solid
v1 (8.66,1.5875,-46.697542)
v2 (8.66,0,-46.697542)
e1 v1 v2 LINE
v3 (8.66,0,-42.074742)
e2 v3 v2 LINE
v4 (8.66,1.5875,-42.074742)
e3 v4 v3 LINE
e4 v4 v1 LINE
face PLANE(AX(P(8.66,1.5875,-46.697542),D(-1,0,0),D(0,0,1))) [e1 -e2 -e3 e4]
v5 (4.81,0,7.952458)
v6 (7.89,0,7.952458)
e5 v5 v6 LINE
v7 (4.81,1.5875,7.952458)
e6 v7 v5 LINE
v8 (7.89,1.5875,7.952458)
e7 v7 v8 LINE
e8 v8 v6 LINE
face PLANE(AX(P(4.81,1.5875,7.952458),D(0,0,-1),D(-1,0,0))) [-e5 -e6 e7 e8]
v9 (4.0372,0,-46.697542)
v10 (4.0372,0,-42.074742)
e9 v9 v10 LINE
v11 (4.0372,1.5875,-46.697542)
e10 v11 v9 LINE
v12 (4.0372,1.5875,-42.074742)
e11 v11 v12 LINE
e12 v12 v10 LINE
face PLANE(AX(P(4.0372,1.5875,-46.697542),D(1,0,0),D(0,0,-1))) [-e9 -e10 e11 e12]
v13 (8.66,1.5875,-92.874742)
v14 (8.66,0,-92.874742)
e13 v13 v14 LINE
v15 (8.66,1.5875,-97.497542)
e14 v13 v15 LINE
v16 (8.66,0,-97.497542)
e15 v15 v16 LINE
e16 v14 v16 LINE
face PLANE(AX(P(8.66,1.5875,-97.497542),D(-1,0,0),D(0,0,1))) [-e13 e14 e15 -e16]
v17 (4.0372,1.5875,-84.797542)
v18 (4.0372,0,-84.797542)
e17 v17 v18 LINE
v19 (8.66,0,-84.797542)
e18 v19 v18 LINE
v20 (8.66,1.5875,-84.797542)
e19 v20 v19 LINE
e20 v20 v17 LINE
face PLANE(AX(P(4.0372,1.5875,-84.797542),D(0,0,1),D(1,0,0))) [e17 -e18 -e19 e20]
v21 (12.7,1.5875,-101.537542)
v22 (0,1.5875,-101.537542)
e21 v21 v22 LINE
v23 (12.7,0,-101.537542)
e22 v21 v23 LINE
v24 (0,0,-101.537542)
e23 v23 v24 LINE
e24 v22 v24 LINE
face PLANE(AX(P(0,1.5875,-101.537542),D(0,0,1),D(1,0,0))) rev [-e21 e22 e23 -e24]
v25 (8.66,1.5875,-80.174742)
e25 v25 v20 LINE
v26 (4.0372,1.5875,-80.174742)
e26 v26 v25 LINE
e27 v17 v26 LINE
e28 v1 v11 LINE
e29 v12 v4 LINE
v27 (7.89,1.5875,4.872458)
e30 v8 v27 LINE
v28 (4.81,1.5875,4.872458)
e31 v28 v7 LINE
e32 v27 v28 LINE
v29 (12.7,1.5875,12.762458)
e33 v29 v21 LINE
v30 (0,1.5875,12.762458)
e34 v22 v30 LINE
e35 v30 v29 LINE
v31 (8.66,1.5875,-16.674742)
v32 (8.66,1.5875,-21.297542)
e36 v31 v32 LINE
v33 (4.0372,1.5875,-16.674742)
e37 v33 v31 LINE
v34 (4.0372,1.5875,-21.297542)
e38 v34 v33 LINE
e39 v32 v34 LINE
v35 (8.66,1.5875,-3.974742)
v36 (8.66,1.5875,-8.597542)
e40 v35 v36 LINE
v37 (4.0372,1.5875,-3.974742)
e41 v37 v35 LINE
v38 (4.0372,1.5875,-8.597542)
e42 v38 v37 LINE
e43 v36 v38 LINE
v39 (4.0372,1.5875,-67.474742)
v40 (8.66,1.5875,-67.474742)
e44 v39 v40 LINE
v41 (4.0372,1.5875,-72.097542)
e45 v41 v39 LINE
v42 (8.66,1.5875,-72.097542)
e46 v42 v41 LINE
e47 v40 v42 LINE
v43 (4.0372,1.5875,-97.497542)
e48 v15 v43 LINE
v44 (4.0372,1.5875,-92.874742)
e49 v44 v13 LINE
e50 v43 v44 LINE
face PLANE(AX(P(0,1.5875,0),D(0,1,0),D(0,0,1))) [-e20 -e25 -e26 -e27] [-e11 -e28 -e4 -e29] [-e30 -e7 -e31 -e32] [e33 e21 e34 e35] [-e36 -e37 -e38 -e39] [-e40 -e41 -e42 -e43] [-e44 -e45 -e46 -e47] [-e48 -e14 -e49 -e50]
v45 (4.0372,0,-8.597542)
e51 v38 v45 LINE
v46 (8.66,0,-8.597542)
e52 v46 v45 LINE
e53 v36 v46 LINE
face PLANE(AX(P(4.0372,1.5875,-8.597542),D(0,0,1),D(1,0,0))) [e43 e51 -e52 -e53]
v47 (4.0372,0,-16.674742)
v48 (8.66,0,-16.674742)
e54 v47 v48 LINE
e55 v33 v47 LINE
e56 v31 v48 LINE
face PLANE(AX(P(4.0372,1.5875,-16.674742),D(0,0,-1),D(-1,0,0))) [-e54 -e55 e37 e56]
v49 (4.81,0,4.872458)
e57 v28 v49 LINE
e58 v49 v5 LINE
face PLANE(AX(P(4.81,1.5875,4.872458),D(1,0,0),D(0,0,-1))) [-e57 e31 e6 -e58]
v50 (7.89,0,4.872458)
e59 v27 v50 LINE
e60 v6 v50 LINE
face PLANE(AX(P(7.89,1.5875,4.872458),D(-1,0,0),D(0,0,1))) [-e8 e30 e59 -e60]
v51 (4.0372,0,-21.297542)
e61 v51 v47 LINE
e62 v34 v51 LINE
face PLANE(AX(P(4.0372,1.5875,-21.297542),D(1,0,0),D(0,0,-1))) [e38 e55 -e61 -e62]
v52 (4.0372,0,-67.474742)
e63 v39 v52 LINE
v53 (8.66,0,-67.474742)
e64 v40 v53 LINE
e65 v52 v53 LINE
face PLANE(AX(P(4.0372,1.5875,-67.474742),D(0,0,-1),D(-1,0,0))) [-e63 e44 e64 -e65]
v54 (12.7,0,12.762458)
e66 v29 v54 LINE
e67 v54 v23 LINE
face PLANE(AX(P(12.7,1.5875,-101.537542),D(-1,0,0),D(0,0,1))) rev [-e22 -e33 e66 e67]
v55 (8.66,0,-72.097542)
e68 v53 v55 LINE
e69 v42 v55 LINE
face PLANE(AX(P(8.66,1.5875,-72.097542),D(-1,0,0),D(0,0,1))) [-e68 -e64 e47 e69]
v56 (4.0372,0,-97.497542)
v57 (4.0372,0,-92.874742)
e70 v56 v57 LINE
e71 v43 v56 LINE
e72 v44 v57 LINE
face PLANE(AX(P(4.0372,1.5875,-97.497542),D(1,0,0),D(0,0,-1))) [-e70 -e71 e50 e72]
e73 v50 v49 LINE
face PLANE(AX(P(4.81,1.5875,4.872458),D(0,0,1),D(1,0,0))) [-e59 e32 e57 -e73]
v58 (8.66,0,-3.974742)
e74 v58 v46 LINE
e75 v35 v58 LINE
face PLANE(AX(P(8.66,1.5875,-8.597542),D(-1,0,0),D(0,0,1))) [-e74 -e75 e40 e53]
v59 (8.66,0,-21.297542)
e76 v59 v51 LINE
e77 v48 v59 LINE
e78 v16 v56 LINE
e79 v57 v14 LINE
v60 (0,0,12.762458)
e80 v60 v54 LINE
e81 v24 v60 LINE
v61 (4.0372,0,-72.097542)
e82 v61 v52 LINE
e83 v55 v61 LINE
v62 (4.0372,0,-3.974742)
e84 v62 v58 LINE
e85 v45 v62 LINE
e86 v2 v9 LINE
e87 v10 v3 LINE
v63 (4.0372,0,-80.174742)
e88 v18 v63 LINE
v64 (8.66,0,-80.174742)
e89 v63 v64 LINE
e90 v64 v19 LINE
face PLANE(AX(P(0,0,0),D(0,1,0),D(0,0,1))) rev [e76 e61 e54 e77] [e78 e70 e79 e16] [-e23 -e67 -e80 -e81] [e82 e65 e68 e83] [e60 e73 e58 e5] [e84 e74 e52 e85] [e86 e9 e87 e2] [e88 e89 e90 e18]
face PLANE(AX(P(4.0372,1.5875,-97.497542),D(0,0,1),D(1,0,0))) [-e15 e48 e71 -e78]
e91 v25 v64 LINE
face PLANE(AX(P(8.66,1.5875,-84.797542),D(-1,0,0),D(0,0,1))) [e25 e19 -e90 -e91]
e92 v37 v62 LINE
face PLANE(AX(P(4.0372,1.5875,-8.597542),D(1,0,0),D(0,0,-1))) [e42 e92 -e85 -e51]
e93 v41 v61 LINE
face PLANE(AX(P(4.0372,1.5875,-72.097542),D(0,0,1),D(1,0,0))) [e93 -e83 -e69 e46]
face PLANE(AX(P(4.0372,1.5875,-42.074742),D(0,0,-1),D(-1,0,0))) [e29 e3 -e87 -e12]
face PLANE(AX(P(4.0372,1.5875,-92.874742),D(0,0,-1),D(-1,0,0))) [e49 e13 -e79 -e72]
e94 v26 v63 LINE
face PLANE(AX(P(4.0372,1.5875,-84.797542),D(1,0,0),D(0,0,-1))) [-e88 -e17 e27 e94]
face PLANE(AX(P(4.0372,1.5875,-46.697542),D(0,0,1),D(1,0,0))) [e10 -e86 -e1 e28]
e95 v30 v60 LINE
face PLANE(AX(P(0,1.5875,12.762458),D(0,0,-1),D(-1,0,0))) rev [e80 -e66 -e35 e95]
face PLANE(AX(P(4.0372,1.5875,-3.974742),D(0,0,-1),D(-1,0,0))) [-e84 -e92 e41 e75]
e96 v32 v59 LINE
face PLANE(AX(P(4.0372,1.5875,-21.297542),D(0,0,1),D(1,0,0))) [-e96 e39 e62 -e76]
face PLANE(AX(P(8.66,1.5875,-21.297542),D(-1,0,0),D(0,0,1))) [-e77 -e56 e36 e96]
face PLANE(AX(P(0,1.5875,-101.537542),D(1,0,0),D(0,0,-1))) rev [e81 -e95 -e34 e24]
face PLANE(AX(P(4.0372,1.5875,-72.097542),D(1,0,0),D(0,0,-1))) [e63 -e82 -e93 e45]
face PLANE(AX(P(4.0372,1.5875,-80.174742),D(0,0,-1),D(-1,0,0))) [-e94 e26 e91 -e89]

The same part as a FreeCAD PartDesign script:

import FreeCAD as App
import Part
import Sketcher
Q = App.Units.Quantity

doc = App.newDocument("Part")
body = doc.addObject("PartDesign::Body", "Body")

# Sketch on XZ plane
sketch1 = body.newObject("Sketcher::SketchObject", "Sketch")
sketch1.AttachmentSupport = (doc.getObject("XZ_Plane"), [""])
sketch1.MapMode = "FlatFace"
sketch1.addGeometry([
    Part.LineSegment(App.Vector(0, -101.5, 0), App.Vector(0, 12.8, 0)),  # 0
    Part.LineSegment(App.Vector(0, 12.8, 0), App.Vector(12.7, 12.8, 0)),  # 1
    Part.LineSegment(App.Vector(12.7, 12.8, 0), App.Vector(12.7, -101.5, 0)),  # 2
    Part.LineSegment(App.Vector(12.7, -101.5, 0), App.Vector(0, -101.5, 0)),  # 3
    Part.LineSegment(App.Vector(7.9, 8, 0), App.Vector(4.8, 8, 0)),  # 4
    Part.LineSegment(App.Vector(4.8, 8, 0), App.Vector(4.8, 4.9, 0)),  # 5
    Part.LineSegment(App.Vector(4.8, 4.9, 0), App.Vector(7.9, 4.9, 0)),  # 6
    Part.LineSegment(App.Vector(7.9, 4.9, 0), App.Vector(7.9, 8, 0)),  # 7
    Part.LineSegment(App.Vector(8.7, -4, 0), App.Vector(4, -4, 0)),  # 8
    Part.LineSegment(App.Vector(4, -4, 0), App.Vector(4, -8.6, 0)),  # 9
    Part.LineSegment(App.Vector(4, -8.6, 0), App.Vector(8.7, -8.6, 0)),  # 10
    Part.LineSegment(App.Vector(8.7, -8.6, 0), App.Vector(8.7, -4, 0)),  # 11
    Part.LineSegment(App.Vector(8.7, -16.7, 0), App.Vector(4, -16.7, 0)),  # 12
    Part.LineSegment(App.Vector(4, -16.7, 0), App.Vector(4, -21.3, 0)),  # 13
    Part.LineSegment(App.Vector(4, -21.3, 0), App.Vector(8.7, -21.3, 0)),  # 14
    Part.LineSegment(App.Vector(8.7, -21.3, 0), App.Vector(8.7, -16.7, 0)),  # 15
    Part.LineSegment(App.Vector(8.7, -42.1, 0), App.Vector(4, -42.1, 0)),  # 16
    Part.LineSegment(App.Vector(4, -42.1, 0), App.Vector(4, -46.7, 0)),  # 17
    Part.LineSegment(App.Vector(4, -46.7, 0), App.Vector(8.7, -46.7, 0)),  # 18
    Part.LineSegment(App.Vector(8.7, -46.7, 0), App.Vector(8.7, -42.1, 0)),  # 19
    Part.LineSegment(App.Vector(8.7, -67.5, 0), App.Vector(4, -67.5, 0)),  # 20
    Part.LineSegment(App.Vector(4, -67.5, 0), App.Vector(4, -72.1, 0)),  # 21
    Part.LineSegment(App.Vector(4, -72.1, 0), App.Vector(8.7, -72.1, 0)),  # 22
    Part.LineSegment(App.Vector(8.7, -72.1, 0), App.Vector(8.7, -67.5, 0)),  # 23
    Part.LineSegment(App.Vector(8.7, -80.2, 0), App.Vector(4, -80.2, 0)),  # 24
    Part.LineSegment(App.Vector(4, -80.2, 0), App.Vector(4, -84.8, 0)),  # 25
    Part.LineSegment(App.Vector(4, -84.8, 0), App.Vector(8.7, -84.8, 0)),  # 26
    Part.LineSegment(App.Vector(8.7, -84.8, 0), App.Vector(8.7, -80.2, 0)),  # 27
    Part.LineSegment(App.Vector(8.7, -92.9, 0), App.Vector(4, -92.9, 0)),  # 28
    Part.LineSegment(App.Vector(4, -92.9, 0), App.Vector(4, -97.5, 0)),  # 29
    Part.LineSegment(App.Vector(4, -97.5, 0), App.Vector(8.7, -97.5, 0)),  # 30
    Part.LineSegment(App.Vector(8.7, -97.5, 0), App.Vector(8.7, -92.9, 0)),  # 31
], False)
sketch1.addConstraint([
    Sketcher.Constraint("Coincident", 0, 2, 1, 1),
    Sketcher.Constraint("Coincident", 1, 2, 2, 1),
    Sketcher.Constraint("Coincident", 2, 2, 3, 1),
    Sketcher.Constraint("Coincident", 3, 2, 0, 1),
    Sketcher.Constraint("Coincident", 4, 2, 5, 1),
    Sketcher.Constraint("Coincident", 5, 2, 6, 1),
    Sketcher.Constraint("Coincident", 6, 2, 7, 1),
    Sketcher.Constraint("Coincident", 7, 2, 4, 1),
    Sketcher.Constraint("Coincident", 8, 2, 9, 1),
    Sketcher.Constraint("Coincident", 9, 2, 10, 1),
    Sketcher.Constraint("Coincident", 10, 2, 11, 1),
    Sketcher.Constraint("Coincident", 11, 2, 8, 1),
    Sketcher.Constraint("Coincident", 12, 2, 13, 1),
    Sketcher.Constraint("Coincident", 13, 2, 14, 1),
    Sketcher.Constraint("Coincident", 14, 2, 15, 1),
    Sketcher.Constraint("Coincident", 15, 2, 12, 1),
    Sketcher.Constraint("Coincident", 16, 2, 17, 1),
    Sketcher.Constraint("Coincident", 17, 2, 18, 1),
    Sketcher.Constraint("Coincident", 18, 2, 19, 1),
    Sketcher.Constraint("Coincident", 19, 2, 16, 1),
    Sketcher.Constraint("Coincident", 20, 2, 21, 1),
    Sketcher.Constraint("Coincident", 21, 2, 22, 1),
    Sketcher.Constraint("Coincident", 22, 2, 23, 1),
    Sketcher.Constraint("Coincident", 23, 2, 20, 1),
    Sketcher.Constraint("Coincident", 24, 2, 25, 1),
    Sketcher.Constraint("Coincident", 25, 2, 26, 1),
    Sketcher.Constraint("Coincident", 26, 2, 27, 1),
    Sketcher.Constraint("Coincident", 27, 2, 24, 1),
    Sketcher.Constraint("Coincident", 28, 2, 29, 1),
    Sketcher.Constraint("Coincident", 29, 2, 30, 1),
    Sketcher.Constraint("Coincident", 30, 2, 31, 1),
    Sketcher.Constraint("Coincident", 31, 2, 28, 1),
    Sketcher.Constraint("Vertical", 0),
    Sketcher.Constraint("Horizontal", 1),
    Sketcher.Constraint("Vertical", 2),
    Sketcher.Constraint("Horizontal", 3),
    Sketcher.Constraint("Horizontal", 4),
    Sketcher.Constraint("Vertical", 5),
    Sketcher.Constraint("Horizontal", 6),
    Sketcher.Constraint("Vertical", 7),
    Sketcher.Constraint("Horizontal", 8),
    Sketcher.Constraint("Vertical", 9),
    Sketcher.Constraint("Horizontal", 10),
    Sketcher.Constraint("Vertical", 11),
    Sketcher.Constraint("Horizontal", 12),
    Sketcher.Constraint("Vertical", 13),
    Sketcher.Constraint("Horizontal", 14),
    Sketcher.Constraint("Vertical", 15),
    Sketcher.Constraint("Horizontal", 16),
    Sketcher.Constraint("Vertical", 17),
    Sketcher.Constraint("Horizontal", 18),
    Sketcher.Constraint("Vertical", 19),
    Sketcher.Constraint("Horizontal", 20),
    Sketcher.Constraint("Vertical", 21),
    Sketcher.Constraint("Horizontal", 22),
    Sketcher.Constraint("Vertical", 23),
    Sketcher.Constraint("Horizontal", 24),
    Sketcher.Constraint("Vertical", 25),
    Sketcher.Constraint("Horizontal", 26),
    Sketcher.Constraint("Vertical", 27),
    Sketcher.Constraint("Horizontal", 28),
    Sketcher.Constraint("Vertical", 29),
    Sketcher.Constraint("Horizontal", 30),
    Sketcher.Constraint("Vertical", 31),
    Sketcher.Constraint("PointOnObject", 0, 2, -2),
    Sketcher.Constraint("Vertical", 9, 2, 12, 2),
    Sketcher.Constraint("Vertical", 11, 2, 14, 2),
    Sketcher.Constraint("Vertical", 13, 2, 16, 2),
    Sketcher.Constraint("Vertical", 15, 2, 18, 2),
    Sketcher.Constraint("Vertical", 17, 2, 20, 2),
    Sketcher.Constraint("Vertical", 19, 2, 22, 2),
    Sketcher.Constraint("Vertical", 21, 2, 24, 2),
    Sketcher.Constraint("Vertical", 23, 2, 26, 2),
    Sketcher.Constraint("Vertical", 25, 2, 28, 2),
    Sketcher.Constraint("Vertical", 27, 2, 30, 2),
    Sketcher.Constraint("Equal", 6, 5),
    Sketcher.Constraint("Equal", 30, 9),
    Sketcher.Constraint("Equal", 11, 13),
    Sketcher.Constraint("Equal", 15, 17),
    Sketcher.Constraint("Equal", 19, 21),
    Sketcher.Constraint("Equal", 23, 25),
    Sketcher.Constraint("Equal", 27, 29),
    Sketcher.Constraint("DistanceX", 1, 1, 1, 2, Q("0.5 in")),
    Sketcher.Constraint("DistanceY", 0, 1, 0, 2, Q("4.5 in")),
    Sketcher.Constraint("DistanceY", 16, 2, 12, 2, Q("1 in")),
    Sketcher.Constraint("DistanceY", 20, 2, 16, 2, Q("1 in")),
    Sketcher.Constraint("DistanceY", 12, 2, 8, 2, Q("0.5 in")),
    Sketcher.Constraint("DistanceY", 24, 2, 20, 2, Q("0.5 in")),
    Sketcher.Constraint("DistanceY", 28, 2, 24, 2, Q("0.5 in")),
    Sketcher.Constraint("DistanceX", 8, 2, 8, 1, Q("0.182 in")),
    Sketcher.Constraint("DistanceX", 4, 2, 4, 1, Q("3.08 mm")),
    Sketcher.Constraint("DistanceX", -1, 1, 4, 2, Q("4.81 mm")),
    Sketcher.Constraint("DistanceX", -1, 1, 8, 2, Q("4.0372 mm")),
    Sketcher.Constraint("DistanceY", 4, 2, 0, 2, Q("4.81 mm")),
    Sketcher.Constraint("DistanceY", 8, 2, 5, 2, Q("8.8472 mm")),
    Sketcher.Constraint("DistanceY", -1, 1, 0, 2, Q("12.762458 mm")),
])
pad1 = body.newObject("PartDesign::Pad", "Pad")
pad1.Profile = sketch1
pad1.Length = Q("0.0625 in")
pad1.Reversed = True

doc.recompute()
